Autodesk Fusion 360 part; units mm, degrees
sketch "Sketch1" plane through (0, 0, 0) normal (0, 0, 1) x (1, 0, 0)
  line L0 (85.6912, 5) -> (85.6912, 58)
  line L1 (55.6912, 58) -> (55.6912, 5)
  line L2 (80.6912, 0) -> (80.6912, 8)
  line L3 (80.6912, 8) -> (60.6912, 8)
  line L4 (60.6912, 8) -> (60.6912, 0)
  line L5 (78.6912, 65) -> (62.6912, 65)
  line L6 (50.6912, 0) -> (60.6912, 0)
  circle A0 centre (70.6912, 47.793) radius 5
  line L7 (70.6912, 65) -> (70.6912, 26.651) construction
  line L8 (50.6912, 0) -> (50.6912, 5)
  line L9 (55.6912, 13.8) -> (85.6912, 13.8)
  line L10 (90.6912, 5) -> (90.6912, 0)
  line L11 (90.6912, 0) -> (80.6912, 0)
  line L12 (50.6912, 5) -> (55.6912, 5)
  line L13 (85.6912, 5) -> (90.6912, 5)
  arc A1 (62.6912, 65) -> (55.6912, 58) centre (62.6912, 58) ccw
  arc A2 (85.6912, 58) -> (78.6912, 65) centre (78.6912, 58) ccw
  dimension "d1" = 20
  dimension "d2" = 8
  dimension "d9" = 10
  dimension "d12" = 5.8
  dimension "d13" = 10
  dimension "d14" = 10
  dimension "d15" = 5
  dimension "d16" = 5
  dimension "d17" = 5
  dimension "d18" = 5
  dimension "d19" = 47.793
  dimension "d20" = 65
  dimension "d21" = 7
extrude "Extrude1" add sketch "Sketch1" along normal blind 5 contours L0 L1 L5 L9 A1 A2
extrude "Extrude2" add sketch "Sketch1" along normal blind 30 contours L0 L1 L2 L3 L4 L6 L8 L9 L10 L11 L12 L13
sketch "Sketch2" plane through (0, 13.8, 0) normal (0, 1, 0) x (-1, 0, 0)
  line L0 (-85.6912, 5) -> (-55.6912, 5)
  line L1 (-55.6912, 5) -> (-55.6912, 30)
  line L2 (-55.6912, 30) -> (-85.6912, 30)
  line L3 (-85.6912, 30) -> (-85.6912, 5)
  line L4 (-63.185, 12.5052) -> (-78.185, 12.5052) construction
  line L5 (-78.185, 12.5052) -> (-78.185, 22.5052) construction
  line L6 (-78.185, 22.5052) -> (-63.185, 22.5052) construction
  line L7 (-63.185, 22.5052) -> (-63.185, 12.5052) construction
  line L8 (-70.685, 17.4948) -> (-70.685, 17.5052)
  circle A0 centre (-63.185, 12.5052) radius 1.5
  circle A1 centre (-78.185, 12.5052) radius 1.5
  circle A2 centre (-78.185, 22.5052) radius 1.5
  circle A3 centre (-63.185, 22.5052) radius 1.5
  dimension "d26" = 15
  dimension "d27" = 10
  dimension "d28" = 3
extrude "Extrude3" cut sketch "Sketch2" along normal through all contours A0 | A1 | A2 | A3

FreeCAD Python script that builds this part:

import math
import FreeCAD as App
import Part
import Sketcher
from FreeCAD import Vector


def add_polygon(sketch, points):
    """Adds a closed chain of lines whose ends are joined by coincident constraints."""
    first, n = sketch.GeometryCount, len(points)
    for a, b in zip(points, points[1:] + points[:1]):
        sketch.addGeometry(Part.LineSegment(App.Vector(*a, 0), App.Vector(*b, 0)), False)
    for i in range(n):
        sketch.addConstraint(Sketcher.Constraint("Coincident", first + i, 2, first + (i + 1) % n, 1))

doc = App.newDocument("Part")
body = doc.addObject("PartDesign::Body", "Body")

sketch1 = body.newObject("Sketcher::SketchObject", "Sketch")
sketch1.AttachmentSupport = (doc.getObject("XY_Plane"), [""])
sketch1.MapMode = "FlatFace"
sketch1.addGeometry(Part.LineSegment(Vector(56, 14, 0), Vector(86, 14, 0)), False)
sketch1.addGeometry(Part.LineSegment(Vector(86, 14, 0), Vector(86, 58, 0)), False)
sketch1.addGeometry(Part.ArcOfCircle(Part.Circle(Vector(79, 58, 0), Vector(0, 0, 1), 7), math.radians(0), math.radians(90)), False)
sketch1.addGeometry(Part.LineSegment(Vector(79, 65, 0), Vector(63, 65, 0)), False)
sketch1.addGeometry(Part.ArcOfCircle(Part.Circle(Vector(63, 58, 0), Vector(0, 0, 1), 7), math.radians(90), math.radians(180)), False)
sketch1.addGeometry(Part.LineSegment(Vector(56, 58, 0), Vector(56, 14, 0)), False)
sketch1.addGeometry(Part.Circle(Vector(71, 48, 0), Vector(0, 0, 1), 5), False)
sketch1.addConstraint(Sketcher.Constraint("Coincident", 0, 2, 1, 1))
sketch1.addConstraint(Sketcher.Constraint("Tangent", 1, 2, 2, 1))
sketch1.addConstraint(Sketcher.Constraint("Tangent", 2, 2, 3, 1))
sketch1.addConstraint(Sketcher.Constraint("Tangent", 3, 2, 4, 1))
sketch1.addConstraint(Sketcher.Constraint("Tangent", 4, 2, 5, 1))
sketch1.addConstraint(Sketcher.Constraint("Coincident", 5, 2, 0, 1))
sketch1.addConstraint(Sketcher.Constraint("Horizontal", 0))
sketch1.addConstraint(Sketcher.Constraint("Vertical", 1))
sketch1.addConstraint(Sketcher.Constraint("Horizontal", 3))
sketch1.addConstraint(Sketcher.Constraint("Vertical", 5))
sketch1.addConstraint(Sketcher.Constraint("Equal", 2, 4))
sketch1.addConstraint(Sketcher.Constraint("Diameter", 6, 10.0))
sketch1.addConstraint(Sketcher.Constraint("Radius", 2, 7.0))
sketch1.addConstraint(Sketcher.Constraint("DistanceY", -1, 1, 2, 2, 65.0))
sketch1.addConstraint(Sketcher.Constraint("DistanceX", 4, 3, 6, 3, 8.0))
sketch1.addConstraint(Sketcher.Constraint("DistanceX", 6, 3, 2, 3, 8.0))
sketch1.addConstraint(Sketcher.Constraint("DistanceY", 1, 1, 1, 2, 44.2))
sketch1.addConstraint(Sketcher.Constraint("DistanceY", -1, 1, 6, 3, 47.793))
sketch1.addConstraint(Sketcher.Constraint("DistanceX", -1, 1, 2, 3, 78.6912))
pad1 = body.newObject("PartDesign::Pad", "Pad")
pad1.Profile = sketch1
pad1.Length = 5

sketch2 = body.newObject("Sketcher::SketchObject", "Sketch001")
sketch2.AttachmentSupport = (doc.getObject("XY_Plane"), [""])
sketch2.MapMode = "FlatFace"
add_polygon(sketch2, [(91, 5), (86, 5), (86, 14), (56, 14), (56, 5), (51, 5), (51, 0), (61, 0), (61, 8), (81, 8), (81, 0), (91, 0)])
sketch2.addConstraint(Sketcher.Constraint("Horizontal", 0))
sketch2.addConstraint(Sketcher.Constraint("Vertical", 1))
sketch2.addConstraint(Sketcher.Constraint("Horizontal", 2))
sketch2.addConstraint(Sketcher.Constraint("Vertical", 3))
sketch2.addConstraint(Sketcher.Constraint("Horizontal", 4))
sketch2.addConstraint(Sketcher.Constraint("Vertical", 5))
sketch2.addConstraint(Sketcher.Constraint("Horizontal", 6))
sketch2.addConstraint(Sketcher.Constraint("Vertical", 7))
sketch2.addConstraint(Sketcher.Constraint("Horizontal", 8))
sketch2.addConstraint(Sketcher.Constraint("Vertical", 9))
sketch2.addConstraint(Sketcher.Constraint("Horizontal", 10))
sketch2.addConstraint(Sketcher.Constraint("Vertical", 11))
sketch2.addConstraint(Sketcher.Constraint("PointOnObject", 5, 2, -1))
sketch2.addConstraint(Sketcher.Constraint("PointOnObject", 9, 2, -1))
sketch2.addConstraint(Sketcher.Constraint("Horizontal", 0, 2, 3, 2))
sketch2.addConstraint(Sketcher.Constraint("Equal", 0, 4))
sketch2.addConstraint(Sketcher.Constraint("Equal", 6, 10))
sketch2.addConstraint(Sketcher.Constraint("Equal", 4, 5))
sketch2.addConstraint(Sketcher.Constraint("DistanceX", 0, 2, 0, 1, 5.0))
sketch2.addConstraint(Sketcher.Constraint("DistanceX", 6, 1, 6, 2, 10.0))
sketch2.addConstraint(Sketcher.Constraint("DistanceX", 8, 1, 8, 2, 20.0))
sketch2.addConstraint(Sketcher.Constraint("DistanceY", 7, 1, 7, 2, 8.0))
sketch2.addConstraint(Sketcher.Constraint("DistanceY", 7, 2, 2, 2, 5.8))
sketch2.addConstraint(Sketcher.Constraint("DistanceX", -1, 1, 0, 2, 85.6912))
pad2 = body.newObject("PartDesign::Pad", "Pad001")
pad2.Profile = sketch2
pad2.Length = 30

sketch3 = body.newObject("Sketcher::SketchObject", "Sketch002")
sketch3.AttachmentSupport = (doc.getObject("XZ_Plane"), [""])
sketch3.MapMode = "FlatFace"
sketch3.AttachmentOffset = App.Placement(Vector(0, 0, -13.8), App.Rotation())
sketch3.addGeometry(Part.Circle(Vector(63.2, 12.5, 0), Vector(0, 0, 1), 1.5), False)
sketch3.addGeometry(Part.Circle(Vector(78.2, 12.5, 0), Vector(0, 0, 1), 1.5), False)
sketch3.addGeometry(Part.Circle(Vector(78.2, 22.5, 0), Vector(0, 0, 1), 1.5), False)
sketch3.addGeometry(Part.Circle(Vector(63.2, 22.5, 0), Vector(0, 0, 1), 1.5), False)
sketch3.addConstraint(Sketcher.Constraint("Equal", 0, 1))
sketch3.addConstraint(Sketcher.Constraint("Equal", 1, 2))
sketch3.addConstraint(Sketcher.Constraint("Equal", 2, 3))
sketch3.addConstraint(Sketcher.Constraint("Horizontal", 0, 3, 1, 3))
sketch3.addConstraint(Sketcher.Constraint("Horizontal", 2, 3, 3, 3))
sketch3.addConstraint(Sketcher.Constraint("Vertical", 1, 3, 2, 3))
sketch3.addConstraint(Sketcher.Constraint("Vertical", 0, 3, 3, 3))
sketch3.addConstraint(Sketcher.Constraint("Diameter", 0, 3.0))
sketch3.addConstraint(Sketcher.Constraint("DistanceX", 0, 3, 1, 3, 15.0))
sketch3.addConstraint(Sketcher.Constraint("DistanceY", 1, 3, 2, 3, 10.0))
sketch3.addConstraint(Sketcher.Constraint("DistanceX", -1, 1, 0, 3, 63.185))
sketch3.addConstraint(Sketcher.Constraint("DistanceY", -1, 1, 0, 3, 12.5052))
pocket1 = body.newObject("PartDesign::Pocket", "Pocket")
pocket1.Profile = sketch3
pocket1.Type = "ThroughAll"

doc.recompute()
